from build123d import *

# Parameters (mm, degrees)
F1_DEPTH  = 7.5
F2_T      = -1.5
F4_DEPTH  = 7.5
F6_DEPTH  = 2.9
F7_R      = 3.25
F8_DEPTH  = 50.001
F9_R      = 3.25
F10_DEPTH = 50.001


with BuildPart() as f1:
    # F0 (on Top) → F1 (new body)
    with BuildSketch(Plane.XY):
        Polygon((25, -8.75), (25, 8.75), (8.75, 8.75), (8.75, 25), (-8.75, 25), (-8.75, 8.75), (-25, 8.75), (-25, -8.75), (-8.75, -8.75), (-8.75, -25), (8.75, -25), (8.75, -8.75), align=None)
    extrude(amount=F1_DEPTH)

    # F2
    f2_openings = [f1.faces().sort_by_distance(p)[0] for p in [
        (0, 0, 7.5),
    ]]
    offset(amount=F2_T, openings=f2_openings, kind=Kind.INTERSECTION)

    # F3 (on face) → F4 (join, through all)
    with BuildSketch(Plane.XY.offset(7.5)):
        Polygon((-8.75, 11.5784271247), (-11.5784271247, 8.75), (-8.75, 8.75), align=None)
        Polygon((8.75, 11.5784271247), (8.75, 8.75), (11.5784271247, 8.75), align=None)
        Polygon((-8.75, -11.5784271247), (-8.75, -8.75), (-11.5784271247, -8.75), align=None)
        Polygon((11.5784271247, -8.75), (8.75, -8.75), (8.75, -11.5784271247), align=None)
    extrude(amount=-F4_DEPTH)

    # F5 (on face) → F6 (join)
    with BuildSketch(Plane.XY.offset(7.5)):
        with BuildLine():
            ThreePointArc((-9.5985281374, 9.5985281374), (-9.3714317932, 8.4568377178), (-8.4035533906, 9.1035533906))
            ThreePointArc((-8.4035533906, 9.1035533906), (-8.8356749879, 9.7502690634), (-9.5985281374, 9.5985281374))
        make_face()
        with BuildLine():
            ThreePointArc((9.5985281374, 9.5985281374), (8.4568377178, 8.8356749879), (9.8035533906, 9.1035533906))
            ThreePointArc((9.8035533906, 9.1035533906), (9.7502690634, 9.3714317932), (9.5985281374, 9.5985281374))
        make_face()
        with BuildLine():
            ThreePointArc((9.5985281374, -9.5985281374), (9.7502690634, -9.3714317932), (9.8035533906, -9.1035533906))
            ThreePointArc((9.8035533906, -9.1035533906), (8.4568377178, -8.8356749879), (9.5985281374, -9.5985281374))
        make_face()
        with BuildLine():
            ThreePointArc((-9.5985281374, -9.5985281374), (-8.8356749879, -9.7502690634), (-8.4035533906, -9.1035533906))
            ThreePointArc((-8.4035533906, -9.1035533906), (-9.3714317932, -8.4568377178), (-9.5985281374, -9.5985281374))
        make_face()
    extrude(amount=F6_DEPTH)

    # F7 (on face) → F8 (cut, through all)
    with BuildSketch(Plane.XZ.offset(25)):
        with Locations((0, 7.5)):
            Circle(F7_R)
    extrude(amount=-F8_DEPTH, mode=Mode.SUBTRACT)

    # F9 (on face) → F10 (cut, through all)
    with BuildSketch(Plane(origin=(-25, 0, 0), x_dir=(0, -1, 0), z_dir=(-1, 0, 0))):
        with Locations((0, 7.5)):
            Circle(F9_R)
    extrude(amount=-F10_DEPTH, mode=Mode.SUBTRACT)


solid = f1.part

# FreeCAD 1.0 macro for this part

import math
import FreeCAD as App
import Part
import Sketcher
Q = App.Units.Quantity


def faces_at(feature, points):
    """Names of the faces that lie closest to the given points."""
    faces = feature.Shape.Faces
    near = lambda p: min(range(len(faces)), key=lambda i: faces[i].distToShape(Part.Vertex(*p))[0])
    return sorted({f"Face{near(p) + 1}" for p in points})


def add_polygon(sketch, points):
    """Adds a closed chain of lines whose ends are joined by coincident constraints."""
    first, n = sketch.GeometryCount, len(points)
    for a, b in zip(points, points[1:] + points[:1]):
        sketch.addGeometry(Part.LineSegment(App.Vector(*a, 0), App.Vector(*b, 0)), False)
    for i in range(n):
        sketch.addConstraint(Sketcher.Constraint("Coincident", first + i, 2, first + (i + 1) % n, 1))

doc = App.newDocument("Part")
params = doc.addObject("Spreadsheet::Sheet", "Params")
for row, (alias, value) in enumerate([
    ("sketch1_width", "17.5 mm"),
    ("pad1_length", "7.5 mm"),
    ("thickness_wall", "1.5 mm"),
    ("sketch2_length", "4 mm"),
    ("sketch3_radius", "0.7 mm"),
    ("pad3_length", "2.9 mm"),
    ("sketch4_diameter", "6.5 mm"),
    ("sketch5_diameter", "6.5 mm"),
], start=1):
    params.set(f"A{row}", alias)
    params.set(f"B{row}", "=" + value)
    params.setAlias(f"B{row}", alias)

body = doc.addObject("PartDesign::Body", "Body")

# Sketch on XY plane
sketch1 = body.newObject("Sketcher::SketchObject", "Sketch")
sketch1.AttachmentSupport = (doc.getObject("XY_Plane"), [""])
sketch1.MapMode = "FlatFace"
add_polygon(sketch1, [(25, -9), (25, 9), (9, 9), (9, 25), (-9, 25), (-9, 9), (-25, 9), (-25, -9), (-9, -9), (-9, -25), (9, -25), (9, -9)])  # lines 0-11
sketch1.addConstraint(Sketcher.Constraint("Vertical", 0))
sketch1.addConstraint(Sketcher.Constraint("Horizontal", 1))
sketch1.addConstraint(Sketcher.Constraint("Vertical", 2))
sketch1.addConstraint(Sketcher.Constraint("Horizontal", 3))
sketch1.addConstraint(Sketcher.Constraint("Vertical", 4))
sketch1.addConstraint(Sketcher.Constraint("Horizontal", 5))
sketch1.addConstraint(Sketcher.Constraint("Vertical", 6))
sketch1.addConstraint(Sketcher.Constraint("Horizontal", 7))
sketch1.addConstraint(Sketcher.Constraint("Vertical", 8))
sketch1.addConstraint(Sketcher.Constraint("Horizontal", 9))
sketch1.addConstraint(Sketcher.Constraint("Vertical", 10))
sketch1.addConstraint(Sketcher.Constraint("Horizontal", 11))
sketch1.addConstraint(Sketcher.Constraint("Symmetric", 0, 2, 6, 2, -1, 1))
sketch1.addConstraint(Sketcher.Constraint("Symmetric", 2, 2, 8, 2, -1, 1))
sketch1.addConstraint(Sketcher.Constraint("Symmetric", 4, 2, 10, 2, -1, 1))
sketch1.addConstraint(Sketcher.Constraint("Symmetric", 1, 2, 4, 2, -2))
sketch1.addConstraint(Sketcher.Constraint("Equal", 9, 0))
sketch1.addConstraint(Sketcher.Constraint("Equal", 11, 2))
sketch1.addConstraint(Sketcher.Constraint("DistanceX", 3, 2, 3, 1, Q("17.5 mm")))
sketch1.addConstraint(Sketcher.Constraint("DistanceX", -1, 1, 0, 2, Q("25 mm")))
sketch1.setExpression("Constraints[30]", "Params.sketch1_width")
pad1 = body.newObject("PartDesign::Pad", "Pad")
pad1.Profile = sketch1
pad1.setExpression("Length", "Params.pad1_length")
doc.recompute()

thickness = body.newObject("PartDesign::Thickness", "Thickness")
thickness.Base = (pad1, faces_at(pad1, [(0, 0, 7.5)]))
thickness.setExpression("Value", "Params.thickness_wall")
thickness.Reversed = True
thickness.Join = "Intersection"

# Sketch on XY plane
sketch2 = body.newObject("Sketcher::SketchObject", "Sketch001")
sketch2.AttachmentSupport = (doc.getObject("XY_Plane"), [""])
sketch2.MapMode = "FlatFace"
sketch2.AttachmentOffset = App.Placement(App.Vector(0, 0, 7.5), App.Rotation())
add_polygon(sketch2, [(-8.8, 11.6), (-11.6, 8.8), (-8.8, 8.8)])  # lines 0-2
add_polygon(sketch2, [(8.8, 11.6), (8.8, 8.8), (11.6, 8.8)])  # lines 3-5
add_polygon(sketch2, [(-8.8, -11.6), (-8.8, -8.8), (-11.6, -8.8)])  # lines 6-8
add_polygon(sketch2, [(11.6, -8.8), (8.8, -8.8), (8.8, -11.6)])  # lines 9-11
sketch2.addConstraint(Sketcher.Constraint("Horizontal", 1))
sketch2.addConstraint(Sketcher.Constraint("Vertical", 2))
sketch2.addConstraint(Sketcher.Constraint("Vertical", 3))
sketch2.addConstraint(Sketcher.Constraint("Horizontal", 4))
sketch2.addConstraint(Sketcher.Constraint("Vertical", 6))
sketch2.addConstraint(Sketcher.Constraint("Horizontal", 7))
sketch2.addConstraint(Sketcher.Constraint("Horizontal", 9))
sketch2.addConstraint(Sketcher.Constraint("Vertical", 10))
sketch2.addConstraint(Sketcher.Constraint("Symmetric", 3, 2, 6, 2, -1, 1))
sketch2.addConstraint(Sketcher.Constraint("Symmetric", 1, 2, 9, 2, -1, 1))
sketch2.addConstraint(Sketcher.Constraint("Symmetric", 1, 2, 3, 2, -2))
sketch2.addConstraint(Sketcher.Constraint("Perpendicular", 0, 5))
sketch2.addConstraint(Sketcher.Constraint("Parallel", 5, 8))
sketch2.addConstraint(Sketcher.Constraint("Perpendicular", 8, 11))
sketch2.addConstraint(Sketcher.Constraint("Horizontal", 2, 2, 5, 2))
sketch2.addConstraint(Sketcher.Constraint("Horizontal", 8, 2, 10, 2))
sketch2.addConstraint(Sketcher.Constraint("Vertical", 0, 2, 7, 2))
sketch2.addConstraint(Sketcher.Constraint("Vertical", 4, 2, 11, 2))
sketch2.addConstraint(Sketcher.Constraint("Distance", 0, Q("4 mm")))
sketch2.addConstraint(Sketcher.Constraint("DistanceX", 1, 2, 3, 2, Q("17.5 mm")))
sketch2.addConstraint(Sketcher.Constraint("DistanceY", 6, 2, 1, 2, Q("17.5 mm")))
sketch2.setExpression("Constraints[30]", "Params.sketch2_length")
pad2 = body.newObject("PartDesign::Pad", "Pad001")
pad2.Profile = sketch2
pad2.Type = "UpToLast"
pad2.Reversed = True

# Sketch on XY plane
sketch3 = body.newObject("Sketcher::SketchObject", "Sketch002")
sketch3.AttachmentSupport = (doc.getObject("XY_Plane"), [""])
sketch3.MapMode = "FlatFace"
sketch3.AttachmentOffset = App.Placement(App.Vector(0, 0, 7.5), App.Rotation())
sketch3.addGeometry(Part.ArcOfCircle(Part.Circle(App.Vector(-9.1, 9.1, 0), App.Vector(0, 0, 1), 0.7), math.radians(135), math.radians(360)), False)
sketch3.addGeometry(Part.ArcOfCircle(Part.Circle(App.Vector(-9.1, 9.1, 0), App.Vector(0, 0, 1), 0.7), math.radians(0), math.radians(135)), False)
sketch3.addGeometry(Part.ArcOfCircle(Part.Circle(App.Vector(9.1, 9.1, 0), App.Vector(0, 0, 1), 0.7), math.radians(45), math.radians(360)), False)
sketch3.addGeometry(Part.ArcOfCircle(Part.Circle(App.Vector(9.1, 9.1, 0), App.Vector(0, 0, 1), 0.7), math.radians(0), math.radians(45)), False)
sketch3.addGeometry(Part.ArcOfCircle(Part.Circle(App.Vector(9.1, -9.1, 0), App.Vector(0, 0, 1), 0.7), math.radians(-45), math.radians(0)), False)
sketch3.addGeometry(Part.ArcOfCircle(Part.Circle(App.Vector(9.1, -9.1, 0), App.Vector(0, 0, 1), 0.7), math.radians(0), math.radians(315)), False)
sketch3.addGeometry(Part.ArcOfCircle(Part.Circle(App.Vector(-9.1, -9.1, 0), App.Vector(0, 0, 1), 0.7), math.radians(-135), math.radians(0)), False)
sketch3.addGeometry(Part.ArcOfCircle(Part.Circle(App.Vector(-9.1, -9.1, 0), App.Vector(0, 0, 1), 0.7), math.radians(0), math.radians(225)), False)
sketch3.addConstraint(Sketcher.Constraint("Tangent", 0, 1, 1, 2))
sketch3.addConstraint(Sketcher.Constraint("Coincident", 1, 1, 0, 2))
sketch3.addConstraint(Sketcher.Constraint("Tangent", 2, 1, 3, 2))
sketch3.addConstraint(Sketcher.Constraint("Coincident", 3, 1, 2, 2))
sketch3.addConstraint(Sketcher.Constraint("Tangent", 4, 1, 5, 2))
sketch3.addConstraint(Sketcher.Constraint("Coincident", 5, 1, 4, 2))
sketch3.addConstraint(Sketcher.Constraint("Tangent", 6, 1, 7, 2))
sketch3.addConstraint(Sketcher.Constraint("Coincident", 7, 1, 6, 2))
sketch3.addConstraint(Sketcher.Constraint("Equal", 1, 2))
sketch3.addConstraint(Sketcher.Constraint("Equal", 3, 4))
sketch3.addConstraint(Sketcher.Constraint("Equal", 5, 6))
sketch3.addConstraint(Sketcher.Constraint("Symmetric", 0, 3, 4, 3, -1, 1))
sketch3.addConstraint(Sketcher.Constraint("Symmetric", 2, 3, 6, 3, -1, 1))
sketch3.addConstraint(Sketcher.Constraint("Symmetric", 0, 3, 2, 3, -2))
sketch3.addConstraint(Sketcher.Constraint("Horizontal", 3, 3, 1, 1))
sketch3.addConstraint(Sketcher.Constraint("Horizontal", 0, 1, 2, 1))
sketch3.addConstraint(Sketcher.Constraint("Horizontal", 1, 1, 3, 1))
sketch3.addConstraint(Sketcher.Constraint("Horizontal", 7, 3, 5, 1))
sketch3.addConstraint(Sketcher.Constraint("Horizontal", 4, 1, 6, 1))
sketch3.addConstraint(Sketcher.Constraint("Horizontal", 5, 1, 7, 1))
sketch3.addConstraint(Sketcher.Constraint("Vertical", 2, 1, 4, 1))
sketch3.addConstraint(Sketcher.Constraint("Radius", 0, Q("0.7 mm")))
sketch3.addConstraint(Sketcher.Constraint("DistanceX", 0, 1, -1, 1, Q("9.598528 mm")))
sketch3.addConstraint(Sketcher.Constraint("DistanceY", -1, 1, 0, 1, Q("9.598528 mm")))
sketch3.addConstraint(Sketcher.Constraint("DistanceX", 0, 1, 2, 3, Q("18.702082 mm")))
sketch3.setExpression("Constraints[21]", "Params.sketch3_radius")
pad3 = body.newObject("PartDesign::Pad", "Pad002")
pad3.Profile = sketch3
pad3.setExpression("Length", "Params.pad3_length")

# Sketch on XZ plane
sketch4 = body.newObject("Sketcher::SketchObject", "Sketch003")
sketch4.AttachmentSupport = (doc.getObject("XZ_Plane"), [""])
sketch4.MapMode = "FlatFace"
sketch4.AttachmentOffset = App.Placement(App.Vector(0, 0, 25), App.Rotation())
sketch4.addGeometry(Part.Circle(App.Vector(0, 7.5, 0), App.Vector(0, 0, 1), 3.2), False)
sketch4.addConstraint(Sketcher.Constraint("PointOnObject", 0, 3, -2))
sketch4.addConstraint(Sketcher.Constraint("Diameter", 0, Q("6.5 mm")))
sketch4.addConstraint(Sketcher.Constraint("DistanceY", -1, 1, 0, 3, Q("7.5 mm")))
sketch4.setExpression("Constraints[1]", "Params.sketch4_diameter")
pocket1 = body.newObject("PartDesign::Pocket", "Pocket")
pocket1.Profile = sketch4
pocket1.Type = "ThroughAll"

# Sketch on YZ plane
sketch5 = body.newObject("Sketcher::SketchObject", "Sketch004")
sketch5.AttachmentSupport = (doc.getObject("YZ_Plane"), [""])
sketch5.MapMode = "FlatFace"
sketch5.AttachmentOffset = App.Placement(App.Vector(0, 0, -25), App.Rotation())
sketch5.addGeometry(Part.Circle(App.Vector(0, 7.5, 0), App.Vector(0, 0, 1), 3.2), False)
sketch5.addConstraint(Sketcher.Constraint("PointOnObject", 0, 3, -2))
sketch5.addConstraint(Sketcher.Constraint("Diameter", 0, Q("6.5 mm")))
sketch5.addConstraint(Sketcher.Constraint("DistanceY", -1, 1, 0, 3, Q("7.5 mm")))
sketch5.setExpression("Constraints[1]", "Params.sketch5_diameter")
pocket2 = body.newObject("PartDesign::Pocket", "Pocket001")
pocket2.Profile = sketch5
pocket2.Type = "ThroughAll"
pocket2.Reversed = True

doc.recompute()
